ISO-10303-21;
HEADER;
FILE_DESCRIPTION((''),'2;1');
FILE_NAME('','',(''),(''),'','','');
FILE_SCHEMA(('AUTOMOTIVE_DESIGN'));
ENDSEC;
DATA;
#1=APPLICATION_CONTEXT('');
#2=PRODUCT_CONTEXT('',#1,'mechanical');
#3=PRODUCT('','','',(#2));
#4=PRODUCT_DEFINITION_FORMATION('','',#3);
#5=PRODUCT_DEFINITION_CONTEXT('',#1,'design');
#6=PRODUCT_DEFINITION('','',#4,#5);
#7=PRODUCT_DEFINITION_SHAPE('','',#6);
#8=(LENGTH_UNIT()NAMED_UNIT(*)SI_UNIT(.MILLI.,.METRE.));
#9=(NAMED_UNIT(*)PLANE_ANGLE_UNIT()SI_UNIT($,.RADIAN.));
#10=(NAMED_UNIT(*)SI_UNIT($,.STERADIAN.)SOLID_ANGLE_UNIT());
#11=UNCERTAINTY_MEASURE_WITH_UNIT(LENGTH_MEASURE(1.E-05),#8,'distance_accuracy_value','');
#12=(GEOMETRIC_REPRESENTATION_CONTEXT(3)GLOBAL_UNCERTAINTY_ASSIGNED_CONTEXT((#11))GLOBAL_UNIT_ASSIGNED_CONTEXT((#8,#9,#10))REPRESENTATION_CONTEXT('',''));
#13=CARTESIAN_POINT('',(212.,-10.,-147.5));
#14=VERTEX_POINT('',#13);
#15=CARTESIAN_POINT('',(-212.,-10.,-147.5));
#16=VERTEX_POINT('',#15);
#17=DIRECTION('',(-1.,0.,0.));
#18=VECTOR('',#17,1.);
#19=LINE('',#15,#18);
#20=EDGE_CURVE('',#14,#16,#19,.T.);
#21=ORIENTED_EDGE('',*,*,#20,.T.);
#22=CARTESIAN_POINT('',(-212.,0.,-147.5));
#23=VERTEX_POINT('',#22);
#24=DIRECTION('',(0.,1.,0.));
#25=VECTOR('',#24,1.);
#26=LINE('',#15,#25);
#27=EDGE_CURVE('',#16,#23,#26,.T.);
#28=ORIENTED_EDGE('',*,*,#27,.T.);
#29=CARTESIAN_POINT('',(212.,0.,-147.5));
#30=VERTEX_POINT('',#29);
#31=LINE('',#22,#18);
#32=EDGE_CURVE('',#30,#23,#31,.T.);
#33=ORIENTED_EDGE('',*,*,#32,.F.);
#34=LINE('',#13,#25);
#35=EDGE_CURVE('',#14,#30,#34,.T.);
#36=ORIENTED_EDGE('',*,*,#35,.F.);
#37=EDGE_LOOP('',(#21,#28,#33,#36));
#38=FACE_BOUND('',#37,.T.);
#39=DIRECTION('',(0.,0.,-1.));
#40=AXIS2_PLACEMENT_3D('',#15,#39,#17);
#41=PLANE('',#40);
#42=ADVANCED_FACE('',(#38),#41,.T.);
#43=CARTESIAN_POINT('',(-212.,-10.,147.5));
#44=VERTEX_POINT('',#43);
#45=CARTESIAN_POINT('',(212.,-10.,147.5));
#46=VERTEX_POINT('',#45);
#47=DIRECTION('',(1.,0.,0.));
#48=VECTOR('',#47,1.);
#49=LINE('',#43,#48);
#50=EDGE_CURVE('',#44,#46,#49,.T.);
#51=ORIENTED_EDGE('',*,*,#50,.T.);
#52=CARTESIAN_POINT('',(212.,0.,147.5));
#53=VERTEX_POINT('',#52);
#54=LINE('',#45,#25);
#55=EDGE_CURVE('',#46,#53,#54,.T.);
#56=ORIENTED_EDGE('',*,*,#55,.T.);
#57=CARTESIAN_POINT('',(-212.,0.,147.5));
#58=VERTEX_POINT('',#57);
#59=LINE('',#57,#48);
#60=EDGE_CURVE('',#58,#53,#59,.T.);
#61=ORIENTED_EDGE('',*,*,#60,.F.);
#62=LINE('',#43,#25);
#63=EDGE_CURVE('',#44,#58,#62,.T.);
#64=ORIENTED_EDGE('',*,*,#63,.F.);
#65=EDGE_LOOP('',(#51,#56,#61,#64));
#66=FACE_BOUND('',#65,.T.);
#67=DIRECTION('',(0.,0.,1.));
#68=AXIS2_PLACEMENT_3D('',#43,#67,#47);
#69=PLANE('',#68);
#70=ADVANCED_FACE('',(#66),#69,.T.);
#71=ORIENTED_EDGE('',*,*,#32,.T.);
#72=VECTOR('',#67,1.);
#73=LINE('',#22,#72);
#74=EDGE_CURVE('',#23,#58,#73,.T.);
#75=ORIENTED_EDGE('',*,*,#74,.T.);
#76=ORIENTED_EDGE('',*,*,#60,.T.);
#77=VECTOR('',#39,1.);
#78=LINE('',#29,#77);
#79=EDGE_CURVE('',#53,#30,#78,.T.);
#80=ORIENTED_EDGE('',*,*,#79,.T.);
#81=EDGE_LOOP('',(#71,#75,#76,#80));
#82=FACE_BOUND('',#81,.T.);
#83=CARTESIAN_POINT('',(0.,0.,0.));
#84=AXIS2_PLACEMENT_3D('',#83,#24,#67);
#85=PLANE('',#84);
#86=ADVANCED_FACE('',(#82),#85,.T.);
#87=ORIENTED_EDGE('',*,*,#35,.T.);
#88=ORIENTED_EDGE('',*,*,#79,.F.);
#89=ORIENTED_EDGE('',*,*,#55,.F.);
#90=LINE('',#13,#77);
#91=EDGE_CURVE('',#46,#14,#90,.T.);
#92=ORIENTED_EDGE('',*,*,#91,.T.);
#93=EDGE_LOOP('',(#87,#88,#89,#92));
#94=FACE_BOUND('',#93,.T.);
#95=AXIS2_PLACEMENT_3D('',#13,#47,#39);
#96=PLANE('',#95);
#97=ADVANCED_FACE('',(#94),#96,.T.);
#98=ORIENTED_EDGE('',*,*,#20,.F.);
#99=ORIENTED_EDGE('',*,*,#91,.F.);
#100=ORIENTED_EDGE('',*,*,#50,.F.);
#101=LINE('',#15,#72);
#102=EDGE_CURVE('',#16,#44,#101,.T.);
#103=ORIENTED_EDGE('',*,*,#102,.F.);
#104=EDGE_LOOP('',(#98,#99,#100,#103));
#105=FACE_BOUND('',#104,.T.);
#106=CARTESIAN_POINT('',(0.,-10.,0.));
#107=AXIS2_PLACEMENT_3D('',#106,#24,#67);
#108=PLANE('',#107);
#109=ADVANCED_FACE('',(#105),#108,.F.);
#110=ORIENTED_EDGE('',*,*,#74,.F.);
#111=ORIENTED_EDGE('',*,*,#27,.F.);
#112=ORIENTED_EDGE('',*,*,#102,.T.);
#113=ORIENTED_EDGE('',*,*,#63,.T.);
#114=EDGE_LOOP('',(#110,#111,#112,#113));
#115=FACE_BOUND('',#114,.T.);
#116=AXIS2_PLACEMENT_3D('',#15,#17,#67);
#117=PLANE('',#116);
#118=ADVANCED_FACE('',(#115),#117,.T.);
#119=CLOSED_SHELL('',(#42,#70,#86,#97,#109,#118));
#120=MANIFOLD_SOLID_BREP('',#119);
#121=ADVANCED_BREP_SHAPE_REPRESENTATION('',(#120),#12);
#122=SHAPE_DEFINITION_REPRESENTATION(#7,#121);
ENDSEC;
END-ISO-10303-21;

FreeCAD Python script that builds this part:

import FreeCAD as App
import Part
import Sketcher
from FreeCAD import Vector
Q = App.Units.Quantity


def add_polygon(sketch, points):
    """Adds a closed chain of lines whose ends are joined by coincident constraints."""
    first, n = sketch.GeometryCount, len(points)
    for a, b in zip(points, points[1:] + points[:1]):
        sketch.addGeometry(Part.LineSegment(App.Vector(*a, 0), App.Vector(*b, 0)), False)
    for i in range(n):
        sketch.addConstraint(Sketcher.Constraint("Coincident", first + i, 2, first + (i + 1) % n, 1))

doc = App.newDocument("Part")
body = doc.addObject("PartDesign::Body", "Body")

# Sketch on XZ plane
sketch1 = doc.addObject("Sketcher::SketchObject", "Sketch")
body.addObject(sketch1)
sketch1.AttachmentSupport = (doc.XZ_Plane, [""])
sketch1.MapMode = "FlatFace"
add_polygon(sketch1, [(-212, -148), (-212, 148), (212, 148), (212, -148)])  # lines 0-3
sketch1.addConstraint([
    Sketcher.Constraint("Vertical", 0),
    Sketcher.Constraint("Horizontal", 1),
    Sketcher.Constraint("Vertical", 2),
    Sketcher.Constraint("Horizontal", 3),
    Sketcher.Constraint("Symmetric", 0, 2, 2, 2, -1, 1),
    Sketcher.Constraint("DistanceX", 1, 1, 1, 2, Q("424 mm")),
    Sketcher.Constraint("DistanceY", 0, 1, 0, 2, Q("295 mm")),
])
pad1 = doc.addObject("PartDesign::Pad", "Pad")
body.addObject(pad1)
pad1.Profile = sketch1
pad1.Length = 10

doc.recompute()
